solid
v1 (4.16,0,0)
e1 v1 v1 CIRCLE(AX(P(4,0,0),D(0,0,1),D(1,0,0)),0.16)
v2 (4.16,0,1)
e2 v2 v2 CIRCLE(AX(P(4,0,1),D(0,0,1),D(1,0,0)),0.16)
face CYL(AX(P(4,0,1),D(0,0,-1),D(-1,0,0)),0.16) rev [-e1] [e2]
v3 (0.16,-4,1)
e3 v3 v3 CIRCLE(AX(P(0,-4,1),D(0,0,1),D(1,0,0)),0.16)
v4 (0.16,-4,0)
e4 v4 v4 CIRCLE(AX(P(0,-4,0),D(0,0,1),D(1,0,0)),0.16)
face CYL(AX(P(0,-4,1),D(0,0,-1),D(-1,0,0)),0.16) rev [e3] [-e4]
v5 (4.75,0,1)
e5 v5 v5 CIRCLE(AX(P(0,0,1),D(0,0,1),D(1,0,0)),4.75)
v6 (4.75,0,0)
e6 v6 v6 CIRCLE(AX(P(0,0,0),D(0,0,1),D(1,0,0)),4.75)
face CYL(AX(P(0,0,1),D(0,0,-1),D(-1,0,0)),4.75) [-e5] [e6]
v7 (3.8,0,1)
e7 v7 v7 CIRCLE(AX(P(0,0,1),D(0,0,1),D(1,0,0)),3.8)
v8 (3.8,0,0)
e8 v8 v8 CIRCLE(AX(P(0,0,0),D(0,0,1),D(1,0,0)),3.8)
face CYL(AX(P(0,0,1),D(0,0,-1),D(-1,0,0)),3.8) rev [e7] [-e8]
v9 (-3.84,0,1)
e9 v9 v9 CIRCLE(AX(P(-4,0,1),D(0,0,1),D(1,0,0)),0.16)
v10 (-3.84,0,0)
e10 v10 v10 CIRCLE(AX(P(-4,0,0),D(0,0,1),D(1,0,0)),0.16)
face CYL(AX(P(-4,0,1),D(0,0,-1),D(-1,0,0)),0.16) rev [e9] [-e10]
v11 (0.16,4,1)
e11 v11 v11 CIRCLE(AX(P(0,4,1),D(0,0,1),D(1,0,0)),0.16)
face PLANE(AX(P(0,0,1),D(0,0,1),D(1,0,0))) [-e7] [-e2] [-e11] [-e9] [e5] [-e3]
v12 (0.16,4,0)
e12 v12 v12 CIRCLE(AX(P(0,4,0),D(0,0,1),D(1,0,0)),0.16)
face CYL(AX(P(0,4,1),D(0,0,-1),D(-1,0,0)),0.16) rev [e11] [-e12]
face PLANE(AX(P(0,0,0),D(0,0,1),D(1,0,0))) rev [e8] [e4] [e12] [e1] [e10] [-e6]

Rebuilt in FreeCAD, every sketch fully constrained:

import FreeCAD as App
import Part
import Sketcher
Q = App.Units.Quantity

doc = App.newDocument("Part")
body = doc.addObject("PartDesign::Body", "Body")

# Sketch on XY plane
sketch1 = doc.addObject("Sketcher::SketchObject", "Sketch")
body.addObject(sketch1)
sketch1.AttachmentSupport = (doc.XY_Plane, [""])
sketch1.MapMode = "FlatFace"
sketch1.addGeometry([
    Part.Circle(App.Vector(0, 0, 0), App.Vector(0, 0, 1), 4.75),  # 0
    Part.Circle(App.Vector(0, -4, 0), App.Vector(0, 0, 1), 0.16),  # 1
    Part.Circle(App.Vector(-4, 0, 0), App.Vector(0, 0, 1), 0.16),  # 2
    Part.Circle(App.Vector(0, 0, 0), App.Vector(0, 0, 1), 3.8),  # 3
    Part.Circle(App.Vector(4, 0, 0), App.Vector(0, 0, 1), 0.16),  # 4
    Part.Circle(App.Vector(0, 4, 0), App.Vector(0, 0, 1), 0.16),  # 5
], False)
sketch1.addConstraint([
    Sketcher.Constraint("Coincident", 0, 3, -1, 1),
    Sketcher.Constraint("Coincident", 3, 3, -1, 1),
    Sketcher.Constraint("Equal", 1, 2),
    Sketcher.Constraint("Equal", 2, 4),
    Sketcher.Constraint("Equal", 4, 5),
    Sketcher.Constraint("Symmetric", 2, 3, 4, 3, -1, 1),
    Sketcher.Constraint("Symmetric", 1, 3, 5, 3, -1, 1),
    Sketcher.Constraint("PointOnObject", 1, 3, -2),
    Sketcher.Constraint("PointOnObject", 2, 3, -1),
    Sketcher.Constraint("Diameter", 0, Q("9.5 mm")),
    Sketcher.Constraint("Diameter", 3, Q("7.6 mm")),
    Sketcher.Constraint("Diameter", 1, Q("0.32 mm")),
    Sketcher.Constraint("DistanceY", 1, 3, -1, 1, Q("4 mm")),
    Sketcher.Constraint("DistanceX", 2, 3, -1, 1, Q("4 mm")),
])
pad1 = doc.addObject("PartDesign::Pad", "Pad")
body.addObject(pad1)
pad1.Profile = sketch1
pad1.Length = 1

doc.recompute()
